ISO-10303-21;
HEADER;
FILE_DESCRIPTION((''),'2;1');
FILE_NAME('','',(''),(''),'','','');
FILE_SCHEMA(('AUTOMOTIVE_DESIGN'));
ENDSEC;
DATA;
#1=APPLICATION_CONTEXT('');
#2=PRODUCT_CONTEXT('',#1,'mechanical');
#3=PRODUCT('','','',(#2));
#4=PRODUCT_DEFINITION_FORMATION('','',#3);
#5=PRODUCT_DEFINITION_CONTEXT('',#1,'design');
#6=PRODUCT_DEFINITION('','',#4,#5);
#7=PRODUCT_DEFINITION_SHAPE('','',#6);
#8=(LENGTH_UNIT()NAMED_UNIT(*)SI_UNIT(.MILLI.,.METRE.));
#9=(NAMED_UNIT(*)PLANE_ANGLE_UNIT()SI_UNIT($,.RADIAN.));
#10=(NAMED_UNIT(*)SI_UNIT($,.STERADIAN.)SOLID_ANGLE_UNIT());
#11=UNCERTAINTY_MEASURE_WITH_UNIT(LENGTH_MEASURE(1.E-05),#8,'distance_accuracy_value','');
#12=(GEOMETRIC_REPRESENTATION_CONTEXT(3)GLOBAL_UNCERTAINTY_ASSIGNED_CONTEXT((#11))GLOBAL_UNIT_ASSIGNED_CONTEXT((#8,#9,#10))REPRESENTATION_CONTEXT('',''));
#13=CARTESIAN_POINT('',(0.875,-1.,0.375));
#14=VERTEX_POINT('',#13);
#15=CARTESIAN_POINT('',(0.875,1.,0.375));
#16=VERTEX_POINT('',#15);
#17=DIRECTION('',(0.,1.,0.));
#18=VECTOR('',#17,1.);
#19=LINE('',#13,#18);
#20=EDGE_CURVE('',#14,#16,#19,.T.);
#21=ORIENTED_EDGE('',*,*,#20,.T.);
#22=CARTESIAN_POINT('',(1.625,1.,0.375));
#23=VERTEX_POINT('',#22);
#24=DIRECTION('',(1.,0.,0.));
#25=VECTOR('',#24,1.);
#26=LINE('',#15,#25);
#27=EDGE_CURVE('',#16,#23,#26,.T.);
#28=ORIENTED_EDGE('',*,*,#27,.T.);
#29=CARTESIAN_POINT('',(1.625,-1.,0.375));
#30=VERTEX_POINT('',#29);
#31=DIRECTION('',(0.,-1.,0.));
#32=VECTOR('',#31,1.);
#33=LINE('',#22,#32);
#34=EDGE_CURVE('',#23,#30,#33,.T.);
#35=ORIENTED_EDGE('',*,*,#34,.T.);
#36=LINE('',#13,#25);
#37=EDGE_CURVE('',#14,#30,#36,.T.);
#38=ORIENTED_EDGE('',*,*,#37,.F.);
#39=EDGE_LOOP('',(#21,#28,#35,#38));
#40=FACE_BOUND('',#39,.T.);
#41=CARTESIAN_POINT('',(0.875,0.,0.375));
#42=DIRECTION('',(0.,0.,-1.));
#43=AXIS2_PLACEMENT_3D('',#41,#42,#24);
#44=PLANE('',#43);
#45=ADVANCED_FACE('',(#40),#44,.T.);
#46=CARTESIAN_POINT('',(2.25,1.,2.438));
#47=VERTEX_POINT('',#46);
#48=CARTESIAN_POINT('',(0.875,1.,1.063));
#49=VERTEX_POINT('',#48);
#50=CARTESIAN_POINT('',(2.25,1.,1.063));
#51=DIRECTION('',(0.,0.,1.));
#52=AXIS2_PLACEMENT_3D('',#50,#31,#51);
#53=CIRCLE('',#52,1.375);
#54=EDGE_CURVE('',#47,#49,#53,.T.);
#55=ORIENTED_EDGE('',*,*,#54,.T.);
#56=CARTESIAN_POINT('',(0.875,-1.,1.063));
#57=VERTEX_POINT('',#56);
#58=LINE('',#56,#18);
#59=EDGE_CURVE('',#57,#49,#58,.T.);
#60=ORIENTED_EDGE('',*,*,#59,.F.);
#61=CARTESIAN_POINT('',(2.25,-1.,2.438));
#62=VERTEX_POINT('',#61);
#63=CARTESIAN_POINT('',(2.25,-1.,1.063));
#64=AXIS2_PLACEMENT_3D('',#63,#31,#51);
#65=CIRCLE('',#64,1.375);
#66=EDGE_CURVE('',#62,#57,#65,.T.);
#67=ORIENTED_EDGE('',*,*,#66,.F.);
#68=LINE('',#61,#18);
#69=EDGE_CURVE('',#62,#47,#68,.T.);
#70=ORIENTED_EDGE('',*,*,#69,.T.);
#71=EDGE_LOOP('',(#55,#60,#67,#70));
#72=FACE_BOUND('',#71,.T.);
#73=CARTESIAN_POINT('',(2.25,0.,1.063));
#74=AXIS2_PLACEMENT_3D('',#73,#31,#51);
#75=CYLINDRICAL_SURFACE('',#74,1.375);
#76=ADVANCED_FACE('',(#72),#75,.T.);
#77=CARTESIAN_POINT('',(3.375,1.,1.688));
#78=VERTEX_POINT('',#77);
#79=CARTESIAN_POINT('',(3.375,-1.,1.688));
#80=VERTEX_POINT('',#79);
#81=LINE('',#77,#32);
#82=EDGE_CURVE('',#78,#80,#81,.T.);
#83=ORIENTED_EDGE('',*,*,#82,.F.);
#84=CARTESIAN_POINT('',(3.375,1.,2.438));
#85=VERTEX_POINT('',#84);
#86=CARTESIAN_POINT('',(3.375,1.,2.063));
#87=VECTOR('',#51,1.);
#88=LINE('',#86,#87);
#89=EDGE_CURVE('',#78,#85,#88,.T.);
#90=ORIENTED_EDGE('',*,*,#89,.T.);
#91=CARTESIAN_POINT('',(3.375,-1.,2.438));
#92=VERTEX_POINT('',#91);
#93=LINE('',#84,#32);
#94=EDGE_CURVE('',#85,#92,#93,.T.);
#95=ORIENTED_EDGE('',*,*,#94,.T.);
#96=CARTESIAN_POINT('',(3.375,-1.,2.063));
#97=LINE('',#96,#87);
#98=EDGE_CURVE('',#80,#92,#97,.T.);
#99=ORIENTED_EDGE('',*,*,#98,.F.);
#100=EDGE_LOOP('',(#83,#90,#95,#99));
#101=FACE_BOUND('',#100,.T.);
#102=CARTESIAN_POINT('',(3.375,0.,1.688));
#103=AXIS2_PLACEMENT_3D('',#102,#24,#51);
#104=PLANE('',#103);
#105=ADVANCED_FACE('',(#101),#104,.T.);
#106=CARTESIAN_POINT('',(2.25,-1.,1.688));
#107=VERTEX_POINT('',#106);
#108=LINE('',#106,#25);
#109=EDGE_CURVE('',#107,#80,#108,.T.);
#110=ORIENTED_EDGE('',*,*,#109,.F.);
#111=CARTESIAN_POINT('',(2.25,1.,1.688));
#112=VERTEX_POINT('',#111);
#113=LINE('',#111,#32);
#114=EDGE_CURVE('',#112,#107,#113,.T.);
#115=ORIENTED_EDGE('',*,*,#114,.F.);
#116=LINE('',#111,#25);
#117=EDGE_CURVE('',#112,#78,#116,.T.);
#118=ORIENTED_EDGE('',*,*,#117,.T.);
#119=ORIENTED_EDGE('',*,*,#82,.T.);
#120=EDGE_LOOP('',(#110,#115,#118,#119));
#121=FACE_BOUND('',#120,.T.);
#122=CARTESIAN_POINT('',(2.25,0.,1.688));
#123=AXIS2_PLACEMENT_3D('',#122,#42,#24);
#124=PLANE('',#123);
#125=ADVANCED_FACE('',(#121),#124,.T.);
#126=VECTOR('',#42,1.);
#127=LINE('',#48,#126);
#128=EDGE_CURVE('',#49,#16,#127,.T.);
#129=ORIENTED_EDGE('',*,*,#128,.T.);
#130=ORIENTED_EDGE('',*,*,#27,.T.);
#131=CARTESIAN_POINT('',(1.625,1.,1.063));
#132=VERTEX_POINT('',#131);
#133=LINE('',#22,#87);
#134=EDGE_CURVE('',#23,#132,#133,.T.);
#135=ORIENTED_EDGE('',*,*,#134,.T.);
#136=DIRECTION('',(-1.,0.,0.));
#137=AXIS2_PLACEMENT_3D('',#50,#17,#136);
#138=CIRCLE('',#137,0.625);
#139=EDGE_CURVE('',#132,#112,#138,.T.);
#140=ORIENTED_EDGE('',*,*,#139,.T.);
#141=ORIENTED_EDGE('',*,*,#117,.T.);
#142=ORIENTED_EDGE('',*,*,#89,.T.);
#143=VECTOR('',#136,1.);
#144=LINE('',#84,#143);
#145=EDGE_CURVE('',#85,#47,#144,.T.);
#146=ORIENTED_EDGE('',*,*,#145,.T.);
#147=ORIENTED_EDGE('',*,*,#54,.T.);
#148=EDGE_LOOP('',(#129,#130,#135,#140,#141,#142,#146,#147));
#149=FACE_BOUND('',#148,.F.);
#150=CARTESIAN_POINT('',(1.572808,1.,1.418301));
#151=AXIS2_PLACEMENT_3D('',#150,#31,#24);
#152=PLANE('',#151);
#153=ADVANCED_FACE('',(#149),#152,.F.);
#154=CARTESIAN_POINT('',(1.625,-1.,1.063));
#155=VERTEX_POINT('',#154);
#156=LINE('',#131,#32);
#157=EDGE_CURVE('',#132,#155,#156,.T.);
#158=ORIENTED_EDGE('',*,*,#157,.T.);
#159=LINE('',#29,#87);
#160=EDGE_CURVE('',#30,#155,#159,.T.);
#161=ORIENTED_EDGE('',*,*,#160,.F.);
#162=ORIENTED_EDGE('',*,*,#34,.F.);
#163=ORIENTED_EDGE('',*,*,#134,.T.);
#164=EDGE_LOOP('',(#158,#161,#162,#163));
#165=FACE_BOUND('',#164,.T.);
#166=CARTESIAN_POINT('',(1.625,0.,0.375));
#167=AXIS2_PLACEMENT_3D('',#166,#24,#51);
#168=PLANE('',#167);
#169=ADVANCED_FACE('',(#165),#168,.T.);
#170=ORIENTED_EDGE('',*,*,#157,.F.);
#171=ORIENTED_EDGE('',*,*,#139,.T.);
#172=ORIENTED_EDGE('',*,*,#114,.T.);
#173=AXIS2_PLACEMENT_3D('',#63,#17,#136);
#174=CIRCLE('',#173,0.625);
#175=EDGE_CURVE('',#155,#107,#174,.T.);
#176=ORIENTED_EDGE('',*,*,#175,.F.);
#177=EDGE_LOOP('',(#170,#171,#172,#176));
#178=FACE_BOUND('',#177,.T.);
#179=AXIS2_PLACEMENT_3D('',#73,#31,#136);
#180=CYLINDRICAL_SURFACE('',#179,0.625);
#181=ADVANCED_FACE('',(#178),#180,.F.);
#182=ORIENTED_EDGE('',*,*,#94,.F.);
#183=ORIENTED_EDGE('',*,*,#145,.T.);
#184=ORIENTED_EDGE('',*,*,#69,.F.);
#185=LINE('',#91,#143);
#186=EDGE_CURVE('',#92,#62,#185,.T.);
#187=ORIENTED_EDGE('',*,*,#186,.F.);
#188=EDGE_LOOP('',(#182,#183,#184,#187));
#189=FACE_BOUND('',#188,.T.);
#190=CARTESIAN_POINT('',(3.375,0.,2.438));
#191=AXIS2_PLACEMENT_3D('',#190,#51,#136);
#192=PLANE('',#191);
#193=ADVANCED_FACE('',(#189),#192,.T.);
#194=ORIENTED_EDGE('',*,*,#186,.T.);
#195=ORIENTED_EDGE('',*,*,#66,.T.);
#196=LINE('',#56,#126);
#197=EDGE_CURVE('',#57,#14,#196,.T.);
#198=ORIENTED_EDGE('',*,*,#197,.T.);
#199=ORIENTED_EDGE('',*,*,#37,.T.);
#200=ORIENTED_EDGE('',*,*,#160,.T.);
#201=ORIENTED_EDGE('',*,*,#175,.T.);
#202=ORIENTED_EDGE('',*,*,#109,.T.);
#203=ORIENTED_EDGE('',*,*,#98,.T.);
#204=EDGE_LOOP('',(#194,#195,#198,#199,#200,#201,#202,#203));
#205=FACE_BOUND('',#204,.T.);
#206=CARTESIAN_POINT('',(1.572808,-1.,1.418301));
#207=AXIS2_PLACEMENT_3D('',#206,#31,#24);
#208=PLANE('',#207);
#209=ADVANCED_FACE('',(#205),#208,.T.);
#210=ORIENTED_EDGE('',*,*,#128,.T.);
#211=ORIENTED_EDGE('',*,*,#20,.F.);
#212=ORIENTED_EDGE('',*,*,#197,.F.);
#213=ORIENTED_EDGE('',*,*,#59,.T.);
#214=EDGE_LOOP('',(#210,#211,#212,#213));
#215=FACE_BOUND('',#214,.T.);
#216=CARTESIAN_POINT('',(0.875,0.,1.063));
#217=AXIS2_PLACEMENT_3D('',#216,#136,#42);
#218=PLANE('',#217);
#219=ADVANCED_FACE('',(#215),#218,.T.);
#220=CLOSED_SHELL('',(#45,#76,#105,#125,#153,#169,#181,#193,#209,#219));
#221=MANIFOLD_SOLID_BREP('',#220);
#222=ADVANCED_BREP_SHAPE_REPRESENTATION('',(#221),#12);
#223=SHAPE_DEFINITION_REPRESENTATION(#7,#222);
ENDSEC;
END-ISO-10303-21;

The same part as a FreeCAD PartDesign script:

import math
import FreeCAD as App
import Part
import Sketcher
Q = App.Units.Quantity

doc = App.newDocument("Part")
body = doc.addObject("PartDesign::Body", "Body")

# Sketch on XZ plane
sketch1 = body.newObject("Sketcher::SketchObject", "Sketch")
sketch1.AttachmentSupport = (doc.getObject("XZ_Plane"), [""])
sketch1.MapMode = "FlatFace"
sketch1.addGeometry(Part.LineSegment(App.Vector(0.875, 0.375, 0), App.Vector(1.625, 0.375, 0)), False)
sketch1.addGeometry(Part.LineSegment(App.Vector(1.625, 0.375, 0), App.Vector(1.625, 1.063, 0)), False)
sketch1.addGeometry(Part.ArcOfCircle(Part.Circle(App.Vector(2.25, 1.063, 0), App.Vector(0, 0, 1), 0.625), math.radians(90), math.radians(180)), False)
sketch1.addGeometry(Part.LineSegment(App.Vector(2.25, 1.688, 0), App.Vector(3.375, 1.688, 0)), False)
sketch1.addGeometry(Part.LineSegment(App.Vector(3.375, 1.688, 0), App.Vector(3.375, 2.438, 0)), False)
sketch1.addGeometry(Part.LineSegment(App.Vector(3.375, 2.438, 0), App.Vector(2.25, 2.438, 0)), False)
sketch1.addGeometry(Part.ArcOfCircle(Part.Circle(App.Vector(2.25, 1.063, 0), App.Vector(0, 0, 1), 1.375), math.radians(90), math.radians(180)), False)
sketch1.addGeometry(Part.LineSegment(App.Vector(0.875, 1.063, 0), App.Vector(0.875, 0.375, 0)), False)
sketch1.addConstraint(Sketcher.Constraint("Coincident", 0, 2, 1, 1))
sketch1.addConstraint(Sketcher.Constraint("Tangent", 1, 2, 2, 2))
sketch1.addConstraint(Sketcher.Constraint("Tangent", 2, 1, 3, 1))
sketch1.addConstraint(Sketcher.Constraint("Coincident", 3, 2, 4, 1))
sketch1.addConstraint(Sketcher.Constraint("Coincident", 4, 2, 5, 1))
sketch1.addConstraint(Sketcher.Constraint("Tangent", 5, 2, 6, 1))
sketch1.addConstraint(Sketcher.Constraint("Tangent", 6, 2, 7, 1))
sketch1.addConstraint(Sketcher.Constraint("Coincident", 7, 2, 0, 1))
sketch1.addConstraint(Sketcher.Constraint("Horizontal", 0))
sketch1.addConstraint(Sketcher.Constraint("Vertical", 1))
sketch1.addConstraint(Sketcher.Constraint("Horizontal", 3))
sketch1.addConstraint(Sketcher.Constraint("Vertical", 4))
sketch1.addConstraint(Sketcher.Constraint("Horizontal", 5))
sketch1.addConstraint(Sketcher.Constraint("Vertical", 7))
sketch1.addConstraint(Sketcher.Constraint("Coincident", 6, 3, 2, 3))
sketch1.addConstraint(Sketcher.Constraint("Radius", 2, Q("0.625 mm")))
sketch1.addConstraint(Sketcher.Constraint("Radius", 6, Q("1.375 mm")))
sketch1.addConstraint(Sketcher.Constraint("DistanceX", 3, 1, 3, 2, Q("1.125 mm")))
sketch1.addConstraint(Sketcher.Constraint("DistanceY", 1, 1, 1, 2, Q("0.688 mm")))
sketch1.addConstraint(Sketcher.Constraint("DistanceX", -1, 1, 2, 3, Q("2.25 mm")))
sketch1.addConstraint(Sketcher.Constraint("DistanceY", -1, 1, 2, 3, Q("1.063 mm")))
pad1 = body.newObject("PartDesign::Pad", "Pad")
pad1.Profile = sketch1
pad1.Length = 2
pad1.Midplane = True

doc.recompute()
